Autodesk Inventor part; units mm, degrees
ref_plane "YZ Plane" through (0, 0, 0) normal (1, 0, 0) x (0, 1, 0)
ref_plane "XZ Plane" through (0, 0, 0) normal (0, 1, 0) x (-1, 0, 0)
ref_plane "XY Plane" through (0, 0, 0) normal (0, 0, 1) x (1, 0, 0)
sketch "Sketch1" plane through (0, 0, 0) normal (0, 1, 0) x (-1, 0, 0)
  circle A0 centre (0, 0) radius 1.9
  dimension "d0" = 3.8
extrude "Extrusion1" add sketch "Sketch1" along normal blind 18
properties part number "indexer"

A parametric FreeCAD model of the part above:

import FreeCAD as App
import Part
import Sketcher
from FreeCAD import Vector
Q = App.Units.Quantity

doc = App.newDocument("Part")
params = doc.addObject("Spreadsheet::Sheet", "Params")
for row, (alias, value) in enumerate([
    ("sketch1_diameter", "3.8 mm"),
    ("pad1_length", "18 mm"),
], start=1):
    params.set(f"A{row}", alias)
    params.set(f"B{row}", "=" + value)
    params.setAlias(f"B{row}", alias)

body = doc.addObject("PartDesign::Body", "Body")

sketch1 = doc.addObject("Sketcher::SketchObject", "Sketch")
body.addObject(sketch1)
sketch1.AttachmentSupport = (doc.XZ_Plane, [""])
sketch1.MapMode = "FlatFace"
sketch1.addGeometry(Part.Circle(Vector(0, 0, 0), Vector(0, 0, 1), 1.9), False)
sketch1.addConstraint([
    Sketcher.Constraint("Coincident", 0, 3, -1, 1),
    Sketcher.Constraint("Diameter", 0, Q("3.8 mm")),
])
sketch1.setExpression("Constraints[1]", "Params.sketch1_diameter")
pad1 = doc.addObject("PartDesign::Pad", "Pad")
body.addObject(pad1)
pad1.Profile = sketch1
pad1.setExpression("Length", "Params.pad1_length")
pad1.Reversed = True

doc.recompute()
